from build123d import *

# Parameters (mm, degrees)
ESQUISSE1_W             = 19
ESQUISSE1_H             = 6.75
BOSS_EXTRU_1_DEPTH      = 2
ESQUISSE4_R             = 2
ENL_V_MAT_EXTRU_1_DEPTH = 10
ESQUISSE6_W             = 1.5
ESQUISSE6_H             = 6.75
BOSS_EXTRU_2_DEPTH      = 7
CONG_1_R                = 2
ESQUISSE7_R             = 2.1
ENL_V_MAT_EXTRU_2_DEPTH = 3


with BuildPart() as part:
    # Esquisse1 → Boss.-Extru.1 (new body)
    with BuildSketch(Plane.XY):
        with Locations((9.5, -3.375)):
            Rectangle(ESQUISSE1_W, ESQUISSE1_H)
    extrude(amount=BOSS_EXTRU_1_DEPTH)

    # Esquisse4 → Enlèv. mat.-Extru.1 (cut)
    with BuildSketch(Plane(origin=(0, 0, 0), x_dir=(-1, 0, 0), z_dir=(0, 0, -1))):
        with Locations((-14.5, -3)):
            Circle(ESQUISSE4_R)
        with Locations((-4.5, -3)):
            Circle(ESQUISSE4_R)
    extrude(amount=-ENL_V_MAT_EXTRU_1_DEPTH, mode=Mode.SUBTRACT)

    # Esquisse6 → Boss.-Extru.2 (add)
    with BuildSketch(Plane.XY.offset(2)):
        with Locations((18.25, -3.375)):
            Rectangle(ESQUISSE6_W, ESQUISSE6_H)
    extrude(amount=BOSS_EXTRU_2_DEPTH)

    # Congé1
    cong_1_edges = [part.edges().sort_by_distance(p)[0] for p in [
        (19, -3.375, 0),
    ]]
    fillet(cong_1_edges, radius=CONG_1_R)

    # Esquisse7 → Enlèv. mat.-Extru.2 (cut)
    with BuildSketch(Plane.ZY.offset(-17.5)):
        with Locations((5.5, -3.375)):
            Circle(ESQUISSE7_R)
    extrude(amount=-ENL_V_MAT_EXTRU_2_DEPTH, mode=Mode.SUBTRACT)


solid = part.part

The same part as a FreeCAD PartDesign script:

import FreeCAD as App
import Part
import Sketcher
from FreeCAD import Vector
Q = App.Units.Quantity


def edges_at(feature, points):
    """Names of the edges that pass closest to the given points."""
    edges = feature.Shape.Edges
    near = lambda p: min(range(len(edges)), key=lambda i: edges[i].distToShape(Part.Vertex(*p))[0])
    return sorted({f"Edge{near(p) + 1}" for p in points})

doc = App.newDocument("Part")
body = doc.addObject("PartDesign::Body", "Body")

sketch1 = doc.addObject("Sketcher::SketchObject", "Sketch")
body.addObject(sketch1)
sketch1.AttachmentSupport = (doc.XY_Plane, [""])
sketch1.MapMode = "FlatFace"
sketch1.addGeometry(Part.LineSegment(Vector(0, 0, 0), Vector(0, -7, 0)), False)
sketch1.addGeometry(Part.LineSegment(Vector(0, -7, 0), Vector(19, -7, 0)), False)
sketch1.addGeometry(Part.LineSegment(Vector(19, -7, 0), Vector(19, 0, 0)), False)
sketch1.addGeometry(Part.LineSegment(Vector(19, 0, 0), Vector(0, 0, 0)), False)
sketch1.addConstraint(Sketcher.Constraint("Coincident", 0, 2, 1, 1))
sketch1.addConstraint(Sketcher.Constraint("Coincident", 1, 2, 2, 1))
sketch1.addConstraint(Sketcher.Constraint("Coincident", 2, 2, 3, 1))
sketch1.addConstraint(Sketcher.Constraint("Coincident", 3, 2, 0, 1))
sketch1.addConstraint(Sketcher.Constraint("Vertical", 0))
sketch1.addConstraint(Sketcher.Constraint("Horizontal", 1))
sketch1.addConstraint(Sketcher.Constraint("Vertical", 2))
sketch1.addConstraint(Sketcher.Constraint("Horizontal", 3))
sketch1.addConstraint(Sketcher.Constraint("Coincident", 3, 2, -1, 1))
sketch1.addConstraint(Sketcher.Constraint("DistanceX", 1, 1, 1, 2, Q("19 mm")))
sketch1.addConstraint(Sketcher.Constraint("DistanceY", 0, 2, 0, 1, Q("6.75 mm")))
pad1 = doc.addObject("PartDesign::Pad", "Pad")
body.addObject(pad1)
pad1.Profile = sketch1
pad1.Length = 2

sketch2 = doc.addObject("Sketcher::SketchObject", "Sketch001")
body.addObject(sketch2)
sketch2.AttachmentSupport = (doc.XY_Plane, [""])
sketch2.MapMode = "FlatFace"
sketch2.addGeometry(Part.Circle(Vector(14.5, -3, 0), Vector(0, 0, 1), 2), False)
sketch2.addGeometry(Part.Circle(Vector(4.5, -3, 0), Vector(0, 0, 1), 2), False)
sketch2.addConstraint(Sketcher.Constraint("Equal", 0, 1))
sketch2.addConstraint(Sketcher.Constraint("Horizontal", 0, 3, 1, 3))
sketch2.addConstraint(Sketcher.Constraint("Diameter", 0, Q("4 mm")))
sketch2.addConstraint(Sketcher.Constraint("DistanceY", 0, 3, -1, 1, Q("3 mm")))
sketch2.addConstraint(Sketcher.Constraint("DistanceX", 1, 3, 0, 3, Q("10 mm")))
sketch2.addConstraint(Sketcher.Constraint("DistanceX", -1, 1, 0, 3, Q("14.5 mm")))
pocket1 = doc.addObject("PartDesign::Pocket", "Pocket")
body.addObject(pocket1)
pocket1.Profile = sketch2
pocket1.Length = 10
pocket1.Reversed = True

sketch3 = doc.addObject("Sketcher::SketchObject", "Sketch002")
body.addObject(sketch3)
sketch3.AttachmentSupport = (doc.XY_Plane, [""])
sketch3.MapMode = "FlatFace"
sketch3.AttachmentOffset = App.Placement(Vector(0, 0, 2), App.Rotation())
sketch3.addGeometry(Part.LineSegment(Vector(17.5, 0, 0), Vector(17.5, -6.8, 0)), False)
sketch3.addGeometry(Part.LineSegment(Vector(17.5, -6.8, 0), Vector(19, -6.8, 0)), False)
sketch3.addGeometry(Part.LineSegment(Vector(19, -6.8, 0), Vector(19, 0, 0)), False)
sketch3.addGeometry(Part.LineSegment(Vector(19, 0, 0), Vector(17.5, 0, 0)), False)
sketch3.addConstraint(Sketcher.Constraint("Coincident", 0, 2, 1, 1))
sketch3.addConstraint(Sketcher.Constraint("Coincident", 1, 2, 2, 1))
sketch3.addConstraint(Sketcher.Constraint("Coincident", 2, 2, 3, 1))
sketch3.addConstraint(Sketcher.Constraint("Coincident", 3, 2, 0, 1))
sketch3.addConstraint(Sketcher.Constraint("Vertical", 0))
sketch3.addConstraint(Sketcher.Constraint("Horizontal", 1))
sketch3.addConstraint(Sketcher.Constraint("Vertical", 2))
sketch3.addConstraint(Sketcher.Constraint("Horizontal", 3))
sketch3.addConstraint(Sketcher.Constraint("PointOnObject", 2, 2, -1))
sketch3.addConstraint(Sketcher.Constraint("DistanceX", 1, 1, 1, 2, Q("1.5 mm")))
sketch3.addConstraint(Sketcher.Constraint("DistanceX", -1, 1, 1, 2, Q("19 mm")))
sketch3.addConstraint(Sketcher.Constraint("DistanceY", 0, 2, 0, 1, Q("6.75 mm")))
pad2 = doc.addObject("PartDesign::Pad", "Pad001")
body.addObject(pad2)
pad2.Profile = sketch3
pad2.Length = 7
doc.recompute()

fillet = doc.addObject("PartDesign::Fillet", "Fillet")
body.addObject(fillet)
fillet.Base = (pad2, edges_at(pad2, [(19, -3.375, 0)]))
fillet.Radius = 2

sketch4 = doc.addObject("Sketcher::SketchObject", "Sketch003")
body.addObject(sketch4)
sketch4.AttachmentSupport = (doc.YZ_Plane, [""])
sketch4.MapMode = "FlatFace"
sketch4.AttachmentOffset = App.Placement(Vector(0, 0, 17.5), App.Rotation())
sketch4.addGeometry(Part.Circle(Vector(-3.4, 5.5, 0), Vector(0, 0, 1), 2.1), False)
sketch4.addConstraint(Sketcher.Constraint("Diameter", 0, Q("4.2 mm")))
sketch4.addConstraint(Sketcher.Constraint("DistanceY", -1, 1, 0, 3, Q("5.5 mm")))
sketch4.addConstraint(Sketcher.Constraint("DistanceX", 0, 3, -1, 1, Q("3.375 mm")))
pocket2 = doc.addObject("PartDesign::Pocket", "Pocket001")
body.addObject(pocket2)
pocket2.Profile = sketch4
pocket2.Length = 3
pocket2.Reversed = True

doc.recompute()
